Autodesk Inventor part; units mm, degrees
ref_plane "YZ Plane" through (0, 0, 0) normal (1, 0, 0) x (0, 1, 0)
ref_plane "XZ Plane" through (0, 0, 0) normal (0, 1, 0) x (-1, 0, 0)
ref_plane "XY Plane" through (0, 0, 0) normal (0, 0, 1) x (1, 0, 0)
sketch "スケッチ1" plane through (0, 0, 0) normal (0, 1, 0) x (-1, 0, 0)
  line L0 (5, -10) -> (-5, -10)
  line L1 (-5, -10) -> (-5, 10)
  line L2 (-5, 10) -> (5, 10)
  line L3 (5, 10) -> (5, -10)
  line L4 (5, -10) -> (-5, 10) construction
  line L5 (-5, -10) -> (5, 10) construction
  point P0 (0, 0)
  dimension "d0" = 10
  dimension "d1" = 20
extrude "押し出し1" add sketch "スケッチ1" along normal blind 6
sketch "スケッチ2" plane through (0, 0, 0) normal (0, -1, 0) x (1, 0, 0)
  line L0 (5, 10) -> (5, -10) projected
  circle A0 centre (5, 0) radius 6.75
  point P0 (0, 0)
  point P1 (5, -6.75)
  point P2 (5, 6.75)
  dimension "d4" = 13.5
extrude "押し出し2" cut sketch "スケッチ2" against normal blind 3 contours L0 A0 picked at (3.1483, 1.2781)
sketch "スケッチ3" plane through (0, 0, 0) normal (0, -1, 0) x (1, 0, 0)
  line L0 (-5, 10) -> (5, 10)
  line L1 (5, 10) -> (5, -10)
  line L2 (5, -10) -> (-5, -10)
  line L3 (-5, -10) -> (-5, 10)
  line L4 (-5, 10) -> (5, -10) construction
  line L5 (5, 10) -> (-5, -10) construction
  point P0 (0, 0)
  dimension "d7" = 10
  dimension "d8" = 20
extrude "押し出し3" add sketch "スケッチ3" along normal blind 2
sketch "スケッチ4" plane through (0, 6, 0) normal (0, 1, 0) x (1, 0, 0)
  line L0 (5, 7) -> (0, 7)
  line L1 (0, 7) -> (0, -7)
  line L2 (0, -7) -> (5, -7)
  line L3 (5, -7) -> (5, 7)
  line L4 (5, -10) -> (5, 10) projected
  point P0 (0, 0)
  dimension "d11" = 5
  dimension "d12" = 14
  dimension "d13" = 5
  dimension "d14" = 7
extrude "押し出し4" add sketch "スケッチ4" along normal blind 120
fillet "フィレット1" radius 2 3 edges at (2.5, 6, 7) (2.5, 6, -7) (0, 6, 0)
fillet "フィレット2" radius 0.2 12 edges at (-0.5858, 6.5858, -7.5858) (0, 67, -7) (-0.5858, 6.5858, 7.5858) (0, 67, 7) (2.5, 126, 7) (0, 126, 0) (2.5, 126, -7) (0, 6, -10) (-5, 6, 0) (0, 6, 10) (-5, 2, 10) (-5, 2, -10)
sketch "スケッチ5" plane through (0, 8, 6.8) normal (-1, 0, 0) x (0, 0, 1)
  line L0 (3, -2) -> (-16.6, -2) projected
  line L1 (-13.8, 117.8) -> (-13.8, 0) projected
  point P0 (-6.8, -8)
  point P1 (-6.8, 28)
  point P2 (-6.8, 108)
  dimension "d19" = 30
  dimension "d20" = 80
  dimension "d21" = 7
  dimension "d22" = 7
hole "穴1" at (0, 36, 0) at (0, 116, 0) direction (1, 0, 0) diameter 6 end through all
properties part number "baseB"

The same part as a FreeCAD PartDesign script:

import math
import FreeCAD as App
import Part
import Sketcher


def edges_at(feature, points):
    """Names of the edges that pass closest to the given points."""
    edges = feature.Shape.Edges
    near = lambda p: min(range(len(edges)), key=lambda i: edges[i].distToShape(Part.Vertex(*p))[0])
    return sorted({f"Edge{near(p) + 1}" for p in points})


def add_polygon(sketch, points):
    """Adds a closed chain of lines whose ends are joined by coincident constraints."""
    first, n = sketch.GeometryCount, len(points)
    for a, b in zip(points, points[1:] + points[:1]):
        sketch.addGeometry(Part.LineSegment(App.Vector(*a, 0), App.Vector(*b, 0)), False)
    for i in range(n):
        sketch.addConstraint(Sketcher.Constraint("Coincident", first + i, 2, first + (i + 1) % n, 1))

doc = App.newDocument("Part")
body = doc.addObject("PartDesign::Body", "Body")

# Sketch on XZ plane
sketch1 = body.newObject("Sketcher::SketchObject", "Sketch")
sketch1.AttachmentSupport = (doc.getObject("XZ_Plane"), [""])
sketch1.MapMode = "FlatFace"
add_polygon(sketch1, [(5, -10), (-5, -10), (-5, 10), (5, 10)])  # lines 0-3
sketch1.addConstraint([
    Sketcher.Constraint("Horizontal", 0),
    Sketcher.Constraint("Vertical", 1),
    Sketcher.Constraint("Horizontal", 2),
    Sketcher.Constraint("Vertical", 3),
    Sketcher.Constraint("Symmetric", 0, 2, 2, 2, -1, 1),
    Sketcher.Constraint("DistanceX", 0, 2, 0, 1, 10.0),
    Sketcher.Constraint("DistanceY", 1, 1, 1, 2, 20.0),
])
pad1 = body.newObject("PartDesign::Pad", "Pad")
pad1.Profile = sketch1
pad1.Length = 6
pad1.Reversed = True

# Sketch on XZ plane
sketch2 = body.newObject("Sketcher::SketchObject", "Sketch001")
sketch2.AttachmentSupport = (doc.getObject("XZ_Plane"), [""])
sketch2.MapMode = "FlatFace"
sketch2.addGeometry([
    Part.LineSegment(App.Vector(5, -7, 0), App.Vector(5, 7, 0)),
    Part.ArcOfCircle(Part.Circle(App.Vector(5, 0, 0), App.Vector(0, 0, 1), 7), math.radians(90), math.radians(270)),
], False)
sketch2.addConstraint([
    Sketcher.Constraint("Coincident", 0, 1, 1, 2),
    Sketcher.Constraint("Coincident", 1, 1, 0, 2),
    Sketcher.Constraint("Vertical", 0),
    Sketcher.Constraint("PointOnObject", 1, 3, -1),
    Sketcher.Constraint("Vertical", 1, 3, 0, 1),
    Sketcher.Constraint("Radius", 1, 6.75),
    Sketcher.Constraint("DistanceX", -1, 1, 1, 3, 5.0),
])
pocket1 = body.newObject("PartDesign::Pocket", "Pocket")
pocket1.Profile = sketch2
pocket1.Length = 3

# Sketch on XZ plane
sketch3 = body.newObject("Sketcher::SketchObject", "Sketch002")
sketch3.AttachmentSupport = (doc.getObject("XZ_Plane"), [""])
sketch3.MapMode = "FlatFace"
add_polygon(sketch3, [(5, 10), (-5, 10), (-5, -10), (5, -10)])  # lines 0-3
sketch3.addConstraint([
    Sketcher.Constraint("Horizontal", 0),
    Sketcher.Constraint("Vertical", 1),
    Sketcher.Constraint("Horizontal", 2),
    Sketcher.Constraint("Vertical", 3),
    Sketcher.Constraint("Symmetric", 0, 2, 2, 2, -1, 1),
    Sketcher.Constraint("DistanceX", 0, 2, 0, 1, 10.0),
    Sketcher.Constraint("DistanceY", 1, 2, 1, 1, 20.0),
])
pad2 = body.newObject("PartDesign::Pad", "Pad001")
pad2.Profile = sketch3
pad2.Length = 2

# Sketch on XZ plane
sketch4 = body.newObject("Sketcher::SketchObject", "Sketch003")
sketch4.AttachmentSupport = (doc.getObject("XZ_Plane"), [""])
sketch4.MapMode = "FlatFace"
sketch4.AttachmentOffset = App.Placement(App.Vector(0, 0, -6), App.Rotation())
add_polygon(sketch4, [(5, 7), (5, -7), (0, -7), (0, 7)])  # lines 0-3
sketch4.addConstraint([
    Sketcher.Constraint("Vertical", 0),
    Sketcher.Constraint("Horizontal", 1),
    Sketcher.Constraint("Vertical", 2),
    Sketcher.Constraint("Horizontal", 3),
    Sketcher.Constraint("Symmetric", 1, 2, 2, 2, -1, 1),
    Sketcher.Constraint("DistanceX", 1, 2, 1, 1, 5.0),
    Sketcher.Constraint("DistanceY", 0, 2, 0, 1, 14.0),
])
pad3 = body.newObject("PartDesign::Pad", "Pad002")
pad3.Profile = sketch4
pad3.Length = 120
pad3.Reversed = True
doc.recompute()

fillet = body.newObject("PartDesign::Fillet", "Fillet")
fillet.Base = (pad3, edges_at(pad3, [(2.5, 6, 7), (2.5, 6, -7), (0, 6, 0)]))
fillet.Radius = 2
doc.recompute()

fillet2 = body.newObject("PartDesign::Fillet", "Fillet001")
fillet2.Base = (fillet, edges_at(fillet, [
    (-0.586, 6.586, -7.586),
    (0, 67, -7),
    (-0.586, 6.586, 7.586),
    (0, 67, 7),
    (2.5, 126, 7),
    (0, 126, 0),
    (2.5, 126, -7),
    (0, 6, -10),
    (-5, 6, 0),
    (0, 6, 10),
    (-5, 2, 10),
    (-5, 2, -10),
]))
fillet2.Radius = 0.2

# Sketch on YZ plane
sketch5 = body.newObject("Sketcher::SketchObject", "Sketch004")
sketch5.AttachmentSupport = (doc.getObject("YZ_Plane"), [""])
sketch5.MapMode = "FlatFace"
sketch5.addGeometry([
    Part.Circle(App.Vector(36, 0, 0), App.Vector(0, 0, 1), 3),
    Part.Circle(App.Vector(116, 0, 0), App.Vector(0, 0, 1), 3),
], False)
sketch5.addConstraint([
    Sketcher.Constraint("Equal", 0, 1),
    Sketcher.Constraint("PointOnObject", 0, 3, -1),
    Sketcher.Constraint("PointOnObject", 1, 3, -1),
    Sketcher.Constraint("Diameter", 0, 6.0),
    Sketcher.Constraint("DistanceX", -1, 1, 0, 3, 36.0),
    Sketcher.Constraint("DistanceX", -1, 1, 1, 3, 116.0),
])
doc.recompute()
hole = body.newObject("PartDesign::Hole", "Hole")
hole.Profile = sketch5
hole.ThreadType = "None"
hole.Diameter = 6
hole.DepthType = "ThroughAll"
hole.Reversed = True

doc.recompute()
